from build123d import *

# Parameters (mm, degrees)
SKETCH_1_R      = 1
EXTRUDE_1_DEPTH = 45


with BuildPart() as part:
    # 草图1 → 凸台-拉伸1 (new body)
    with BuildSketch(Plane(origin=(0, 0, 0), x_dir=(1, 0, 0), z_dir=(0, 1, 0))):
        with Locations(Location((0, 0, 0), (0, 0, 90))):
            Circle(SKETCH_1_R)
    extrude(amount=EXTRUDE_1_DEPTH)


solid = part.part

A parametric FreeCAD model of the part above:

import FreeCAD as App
import Part
import Sketcher

V = App.Vector

doc = App.newDocument("Part")
params = doc.addObject("Spreadsheet::Sheet", "Params")
for row, (alias, value) in enumerate([
    ("sketch1_diameter", "2 mm"),
    ("pad1_length", "45 mm"),
], start=1):
    params.set(f"A{row}", alias)
    params.set(f"B{row}", "=" + value)
    params.setAlias(f"B{row}", alias)

body = doc.addObject("PartDesign::Body", "Body")

sketch1 = body.newObject("Sketcher::SketchObject", "Sketch")
sketch1.AttachmentSupport = (doc.getObject("XZ_Plane"), [""])
sketch1.MapMode = "FlatFace"
sketch1.addGeometry(Part.Circle(V(0, 0, 0), V(0, 0, 1), 1), False)
sketch1.addConstraint([
    Sketcher.Constraint("Coincident", 0, 3, -1, 1),
    Sketcher.Constraint("Diameter", 0, 2.0),
])
sketch1.setExpression("Constraints[1]", "Params.sketch1_diameter")
pad1 = body.newObject("PartDesign::Pad", "Pad")
pad1.Profile = sketch1
pad1.setExpression("Length", "Params.pad1_length")
pad1.Reversed = True

doc.recompute()
